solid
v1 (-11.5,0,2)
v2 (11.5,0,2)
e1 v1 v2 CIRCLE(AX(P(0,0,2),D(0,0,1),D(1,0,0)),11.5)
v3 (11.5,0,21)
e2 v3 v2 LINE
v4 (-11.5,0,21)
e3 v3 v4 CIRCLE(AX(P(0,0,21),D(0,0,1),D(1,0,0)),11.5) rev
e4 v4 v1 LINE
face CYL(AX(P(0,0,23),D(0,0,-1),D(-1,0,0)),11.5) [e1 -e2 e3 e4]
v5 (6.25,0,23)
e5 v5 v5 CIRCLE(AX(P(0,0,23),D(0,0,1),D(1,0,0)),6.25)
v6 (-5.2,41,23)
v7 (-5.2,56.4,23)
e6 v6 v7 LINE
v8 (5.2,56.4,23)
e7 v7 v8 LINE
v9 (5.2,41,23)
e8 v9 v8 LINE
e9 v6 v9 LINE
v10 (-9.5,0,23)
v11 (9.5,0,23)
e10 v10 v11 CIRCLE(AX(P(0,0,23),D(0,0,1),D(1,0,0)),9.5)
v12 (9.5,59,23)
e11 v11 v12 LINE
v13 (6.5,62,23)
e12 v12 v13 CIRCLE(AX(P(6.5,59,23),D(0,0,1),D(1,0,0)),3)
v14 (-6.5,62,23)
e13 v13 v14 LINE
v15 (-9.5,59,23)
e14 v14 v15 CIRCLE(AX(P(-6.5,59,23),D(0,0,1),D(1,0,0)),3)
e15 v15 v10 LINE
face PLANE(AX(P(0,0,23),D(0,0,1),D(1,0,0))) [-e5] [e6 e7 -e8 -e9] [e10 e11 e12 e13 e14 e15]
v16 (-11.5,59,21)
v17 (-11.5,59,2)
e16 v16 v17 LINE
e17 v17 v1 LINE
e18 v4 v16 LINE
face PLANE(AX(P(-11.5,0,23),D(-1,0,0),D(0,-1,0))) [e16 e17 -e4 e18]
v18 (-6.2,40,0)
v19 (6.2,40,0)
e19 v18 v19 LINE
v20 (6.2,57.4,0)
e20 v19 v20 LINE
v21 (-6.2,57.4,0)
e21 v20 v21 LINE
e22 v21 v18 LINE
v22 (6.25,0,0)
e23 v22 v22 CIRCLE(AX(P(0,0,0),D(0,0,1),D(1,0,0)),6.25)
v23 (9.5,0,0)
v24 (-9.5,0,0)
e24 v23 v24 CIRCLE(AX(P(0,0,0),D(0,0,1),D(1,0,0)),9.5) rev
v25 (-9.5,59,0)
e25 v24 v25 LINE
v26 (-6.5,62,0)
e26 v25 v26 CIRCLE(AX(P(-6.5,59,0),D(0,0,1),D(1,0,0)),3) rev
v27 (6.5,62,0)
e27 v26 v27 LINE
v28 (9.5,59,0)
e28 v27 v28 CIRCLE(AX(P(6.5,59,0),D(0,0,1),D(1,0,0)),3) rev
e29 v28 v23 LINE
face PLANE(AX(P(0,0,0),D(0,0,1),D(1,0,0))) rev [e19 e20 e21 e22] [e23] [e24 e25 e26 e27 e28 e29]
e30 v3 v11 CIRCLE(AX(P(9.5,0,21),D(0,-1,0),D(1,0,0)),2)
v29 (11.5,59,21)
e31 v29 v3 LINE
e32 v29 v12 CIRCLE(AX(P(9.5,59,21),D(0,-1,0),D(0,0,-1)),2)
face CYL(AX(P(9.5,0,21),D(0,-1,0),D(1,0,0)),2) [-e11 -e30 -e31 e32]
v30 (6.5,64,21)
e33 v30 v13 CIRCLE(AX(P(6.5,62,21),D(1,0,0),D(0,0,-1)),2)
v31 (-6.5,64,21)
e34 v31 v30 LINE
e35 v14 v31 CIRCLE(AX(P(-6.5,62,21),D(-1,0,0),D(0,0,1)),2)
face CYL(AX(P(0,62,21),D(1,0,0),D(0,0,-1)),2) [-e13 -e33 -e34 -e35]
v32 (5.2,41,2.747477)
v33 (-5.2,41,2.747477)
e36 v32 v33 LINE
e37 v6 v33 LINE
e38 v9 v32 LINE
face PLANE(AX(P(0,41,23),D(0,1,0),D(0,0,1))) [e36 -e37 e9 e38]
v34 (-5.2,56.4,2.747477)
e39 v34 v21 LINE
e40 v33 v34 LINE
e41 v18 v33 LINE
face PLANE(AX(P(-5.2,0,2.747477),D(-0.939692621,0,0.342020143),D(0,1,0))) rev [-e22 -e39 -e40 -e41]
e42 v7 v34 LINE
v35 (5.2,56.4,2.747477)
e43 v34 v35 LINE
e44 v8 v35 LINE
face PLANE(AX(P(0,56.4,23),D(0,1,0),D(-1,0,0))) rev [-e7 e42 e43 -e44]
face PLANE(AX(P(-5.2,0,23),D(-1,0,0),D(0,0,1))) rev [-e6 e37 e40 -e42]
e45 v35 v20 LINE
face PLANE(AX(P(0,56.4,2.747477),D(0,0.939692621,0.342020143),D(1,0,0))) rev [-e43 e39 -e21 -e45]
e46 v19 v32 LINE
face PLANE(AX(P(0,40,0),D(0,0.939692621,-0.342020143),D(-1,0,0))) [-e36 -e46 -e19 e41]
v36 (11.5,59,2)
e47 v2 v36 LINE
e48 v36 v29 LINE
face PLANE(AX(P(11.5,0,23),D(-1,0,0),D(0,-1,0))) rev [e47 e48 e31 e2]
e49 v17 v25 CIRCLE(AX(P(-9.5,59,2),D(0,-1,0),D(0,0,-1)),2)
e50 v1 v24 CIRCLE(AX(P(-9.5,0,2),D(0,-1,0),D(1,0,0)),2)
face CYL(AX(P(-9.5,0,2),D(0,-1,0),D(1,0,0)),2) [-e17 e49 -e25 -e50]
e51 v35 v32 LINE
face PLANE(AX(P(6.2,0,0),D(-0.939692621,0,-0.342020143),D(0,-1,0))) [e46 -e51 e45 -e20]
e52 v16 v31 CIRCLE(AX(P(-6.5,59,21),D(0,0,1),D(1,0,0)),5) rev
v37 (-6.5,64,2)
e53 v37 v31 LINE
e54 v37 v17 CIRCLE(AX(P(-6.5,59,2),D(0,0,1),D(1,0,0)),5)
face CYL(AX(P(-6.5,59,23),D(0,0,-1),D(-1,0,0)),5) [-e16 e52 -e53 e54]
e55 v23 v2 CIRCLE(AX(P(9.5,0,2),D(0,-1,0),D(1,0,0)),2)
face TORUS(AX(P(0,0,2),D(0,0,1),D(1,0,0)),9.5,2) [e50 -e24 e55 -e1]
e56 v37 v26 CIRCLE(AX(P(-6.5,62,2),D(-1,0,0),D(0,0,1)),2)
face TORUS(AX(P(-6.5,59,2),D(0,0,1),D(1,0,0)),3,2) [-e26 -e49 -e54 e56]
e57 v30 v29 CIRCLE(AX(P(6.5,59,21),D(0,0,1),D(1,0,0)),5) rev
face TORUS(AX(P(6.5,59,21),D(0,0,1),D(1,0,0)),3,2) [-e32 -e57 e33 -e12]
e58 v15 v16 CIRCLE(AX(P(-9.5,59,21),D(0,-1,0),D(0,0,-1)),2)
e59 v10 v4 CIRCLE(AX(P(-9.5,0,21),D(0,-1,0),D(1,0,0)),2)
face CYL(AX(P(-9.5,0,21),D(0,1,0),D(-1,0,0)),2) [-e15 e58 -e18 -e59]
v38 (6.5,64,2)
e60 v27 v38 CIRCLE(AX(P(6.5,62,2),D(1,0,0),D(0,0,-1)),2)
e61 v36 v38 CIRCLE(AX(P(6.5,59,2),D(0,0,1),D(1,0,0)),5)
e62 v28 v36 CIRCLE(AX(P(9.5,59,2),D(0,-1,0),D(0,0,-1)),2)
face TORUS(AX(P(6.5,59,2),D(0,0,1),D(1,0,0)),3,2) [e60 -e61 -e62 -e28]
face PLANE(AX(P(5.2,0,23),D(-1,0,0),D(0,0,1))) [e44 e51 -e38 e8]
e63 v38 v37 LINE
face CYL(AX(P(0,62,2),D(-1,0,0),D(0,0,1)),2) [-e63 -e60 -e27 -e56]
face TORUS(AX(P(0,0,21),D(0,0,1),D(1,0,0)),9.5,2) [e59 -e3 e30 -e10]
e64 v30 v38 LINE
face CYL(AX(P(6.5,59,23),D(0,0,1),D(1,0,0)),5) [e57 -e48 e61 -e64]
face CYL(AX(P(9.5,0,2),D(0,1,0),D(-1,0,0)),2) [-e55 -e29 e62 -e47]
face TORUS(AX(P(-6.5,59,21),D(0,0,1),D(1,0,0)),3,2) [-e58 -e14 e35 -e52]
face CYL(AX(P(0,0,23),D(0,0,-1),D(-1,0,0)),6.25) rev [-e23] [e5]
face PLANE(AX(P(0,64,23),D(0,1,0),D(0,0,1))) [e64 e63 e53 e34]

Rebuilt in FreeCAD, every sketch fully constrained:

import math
import FreeCAD as App
import Part
import Sketcher


def edges_at(feature, points):
    """Names of the edges that pass closest to the given points."""
    edges = feature.Shape.Edges
    near = lambda p: min(range(len(edges)), key=lambda i: edges[i].distToShape(Part.Vertex(*p))[0])
    return sorted({f"Edge{near(p) + 1}" for p in points})

doc = App.newDocument("Part")
body = doc.addObject("PartDesign::Body", "Body")

sketch1 = body.newObject("Sketcher::SketchObject", "Sketch")
sketch1.AttachmentSupport = (doc.getObject("XY_Plane"), [""])
sketch1.MapMode = "FlatFace"
sketch1.addGeometry([
    Part.LineSegment(App.Vector(-12, 64, 0), App.Vector(-12, 0, 0)),
    Part.ArcOfCircle(Part.Circle(App.Vector(0, 0, 0), App.Vector(0, 0, 1), 12), math.radians(180), math.radians(360)),
    Part.LineSegment(App.Vector(12, 0, 0), App.Vector(12, 64, 0)),
    Part.LineSegment(App.Vector(12, 64, 0), App.Vector(-12, 64, 0)),
    Part.LineSegment(App.Vector(5, 41, 0), App.Vector(-5, 41, 0)),
    Part.LineSegment(App.Vector(-5, 41, 0), App.Vector(-5, 56, 0)),
    Part.LineSegment(App.Vector(-5, 56, 0), App.Vector(5, 56, 0)),
    Part.LineSegment(App.Vector(5, 56, 0), App.Vector(5, 41, 0)),
    Part.Circle(App.Vector(0, 0, 0), App.Vector(0, 0, 1), 6),
], False)
sketch1.addConstraint([
    Sketcher.Constraint("Tangent", 0, 2, 1, 1),
    Sketcher.Constraint("Tangent", 1, 2, 2, 1),
    Sketcher.Constraint("Coincident", 2, 2, 3, 1),
    Sketcher.Constraint("Coincident", 3, 2, 0, 1),
    Sketcher.Constraint("Coincident", 4, 2, 5, 1),
    Sketcher.Constraint("Coincident", 5, 2, 6, 1),
    Sketcher.Constraint("Coincident", 6, 2, 7, 1),
    Sketcher.Constraint("Coincident", 7, 2, 4, 1),
    Sketcher.Constraint("Vertical", 0),
    Sketcher.Constraint("Vertical", 2),
    Sketcher.Constraint("Horizontal", 3),
    Sketcher.Constraint("Horizontal", 4),
    Sketcher.Constraint("Vertical", 5),
    Sketcher.Constraint("Horizontal", 6),
    Sketcher.Constraint("Vertical", 7),
    Sketcher.Constraint("Coincident", 1, 3, -1, 1),
    Sketcher.Constraint("Coincident", 8, 3, -1, 1),
    Sketcher.Constraint("Diameter", 8, 12.5),
    Sketcher.Constraint("Radius", 1, 11.5),
    Sketcher.Constraint("DistanceY", 0, 2, 0, 1, 64.0),
    Sketcher.Constraint("DistanceX", 4, 2, 4, 1, 10.4),
    Sketcher.Constraint("DistanceY", 5, 1, 5, 2, 15.4),
    Sketcher.Constraint("DistanceY", -1, 1, 4, 2, 41.0),
    Sketcher.Constraint("DistanceX", 4, 2, -1, 1, 5.2),
])
pad1 = body.newObject("PartDesign::Pad", "Pad")
pad1.Profile = sketch1
pad1.Length = 23
doc.recompute()

chamfer = body.newObject("PartDesign::Chamfer", "Chamfer")
chamfer.Base = (pad1, edges_at(pad1, [
    (0, 56.4, 0),
    (-5.2, 48.7, 0),
    (0, 41, 0),
    (5.2, 48.7, 0),
]))
chamfer.ChamferType = "Two distances"
chamfer.Size = 1
chamfer.Size2 = 2.747477
chamfer.FlipDirection = True
doc.recompute()

fillet = body.newObject("PartDesign::Fillet", "Fillet")
fillet.Base = (chamfer, edges_at(chamfer, [(-11.5, 64, 11.5), (11.5, 64, 11.5)]))
fillet.Radius = 5
doc.recompute()

fillet2 = body.newObject("PartDesign::Fillet", "Fillet001")
fillet2.Base = (fillet, edges_at(fillet, [
    (0, -11.5, 23),
    (11.5, 29.5, 0),
    (0, -11.5, 0),
    (-11.5, 29.5, 0),
    (11.5, 29.5, 23),
    (0, 64, 0),
    (10.036, 62.536, 0),
    (-10.036, 62.536, 0),
    (0, 64, 23),
    (10.036, 62.536, 23),
    (-10.036, 62.536, 23),
    (-11.5, 29.5, 23),
]))
fillet2.Radius = 2

doc.recompute()
